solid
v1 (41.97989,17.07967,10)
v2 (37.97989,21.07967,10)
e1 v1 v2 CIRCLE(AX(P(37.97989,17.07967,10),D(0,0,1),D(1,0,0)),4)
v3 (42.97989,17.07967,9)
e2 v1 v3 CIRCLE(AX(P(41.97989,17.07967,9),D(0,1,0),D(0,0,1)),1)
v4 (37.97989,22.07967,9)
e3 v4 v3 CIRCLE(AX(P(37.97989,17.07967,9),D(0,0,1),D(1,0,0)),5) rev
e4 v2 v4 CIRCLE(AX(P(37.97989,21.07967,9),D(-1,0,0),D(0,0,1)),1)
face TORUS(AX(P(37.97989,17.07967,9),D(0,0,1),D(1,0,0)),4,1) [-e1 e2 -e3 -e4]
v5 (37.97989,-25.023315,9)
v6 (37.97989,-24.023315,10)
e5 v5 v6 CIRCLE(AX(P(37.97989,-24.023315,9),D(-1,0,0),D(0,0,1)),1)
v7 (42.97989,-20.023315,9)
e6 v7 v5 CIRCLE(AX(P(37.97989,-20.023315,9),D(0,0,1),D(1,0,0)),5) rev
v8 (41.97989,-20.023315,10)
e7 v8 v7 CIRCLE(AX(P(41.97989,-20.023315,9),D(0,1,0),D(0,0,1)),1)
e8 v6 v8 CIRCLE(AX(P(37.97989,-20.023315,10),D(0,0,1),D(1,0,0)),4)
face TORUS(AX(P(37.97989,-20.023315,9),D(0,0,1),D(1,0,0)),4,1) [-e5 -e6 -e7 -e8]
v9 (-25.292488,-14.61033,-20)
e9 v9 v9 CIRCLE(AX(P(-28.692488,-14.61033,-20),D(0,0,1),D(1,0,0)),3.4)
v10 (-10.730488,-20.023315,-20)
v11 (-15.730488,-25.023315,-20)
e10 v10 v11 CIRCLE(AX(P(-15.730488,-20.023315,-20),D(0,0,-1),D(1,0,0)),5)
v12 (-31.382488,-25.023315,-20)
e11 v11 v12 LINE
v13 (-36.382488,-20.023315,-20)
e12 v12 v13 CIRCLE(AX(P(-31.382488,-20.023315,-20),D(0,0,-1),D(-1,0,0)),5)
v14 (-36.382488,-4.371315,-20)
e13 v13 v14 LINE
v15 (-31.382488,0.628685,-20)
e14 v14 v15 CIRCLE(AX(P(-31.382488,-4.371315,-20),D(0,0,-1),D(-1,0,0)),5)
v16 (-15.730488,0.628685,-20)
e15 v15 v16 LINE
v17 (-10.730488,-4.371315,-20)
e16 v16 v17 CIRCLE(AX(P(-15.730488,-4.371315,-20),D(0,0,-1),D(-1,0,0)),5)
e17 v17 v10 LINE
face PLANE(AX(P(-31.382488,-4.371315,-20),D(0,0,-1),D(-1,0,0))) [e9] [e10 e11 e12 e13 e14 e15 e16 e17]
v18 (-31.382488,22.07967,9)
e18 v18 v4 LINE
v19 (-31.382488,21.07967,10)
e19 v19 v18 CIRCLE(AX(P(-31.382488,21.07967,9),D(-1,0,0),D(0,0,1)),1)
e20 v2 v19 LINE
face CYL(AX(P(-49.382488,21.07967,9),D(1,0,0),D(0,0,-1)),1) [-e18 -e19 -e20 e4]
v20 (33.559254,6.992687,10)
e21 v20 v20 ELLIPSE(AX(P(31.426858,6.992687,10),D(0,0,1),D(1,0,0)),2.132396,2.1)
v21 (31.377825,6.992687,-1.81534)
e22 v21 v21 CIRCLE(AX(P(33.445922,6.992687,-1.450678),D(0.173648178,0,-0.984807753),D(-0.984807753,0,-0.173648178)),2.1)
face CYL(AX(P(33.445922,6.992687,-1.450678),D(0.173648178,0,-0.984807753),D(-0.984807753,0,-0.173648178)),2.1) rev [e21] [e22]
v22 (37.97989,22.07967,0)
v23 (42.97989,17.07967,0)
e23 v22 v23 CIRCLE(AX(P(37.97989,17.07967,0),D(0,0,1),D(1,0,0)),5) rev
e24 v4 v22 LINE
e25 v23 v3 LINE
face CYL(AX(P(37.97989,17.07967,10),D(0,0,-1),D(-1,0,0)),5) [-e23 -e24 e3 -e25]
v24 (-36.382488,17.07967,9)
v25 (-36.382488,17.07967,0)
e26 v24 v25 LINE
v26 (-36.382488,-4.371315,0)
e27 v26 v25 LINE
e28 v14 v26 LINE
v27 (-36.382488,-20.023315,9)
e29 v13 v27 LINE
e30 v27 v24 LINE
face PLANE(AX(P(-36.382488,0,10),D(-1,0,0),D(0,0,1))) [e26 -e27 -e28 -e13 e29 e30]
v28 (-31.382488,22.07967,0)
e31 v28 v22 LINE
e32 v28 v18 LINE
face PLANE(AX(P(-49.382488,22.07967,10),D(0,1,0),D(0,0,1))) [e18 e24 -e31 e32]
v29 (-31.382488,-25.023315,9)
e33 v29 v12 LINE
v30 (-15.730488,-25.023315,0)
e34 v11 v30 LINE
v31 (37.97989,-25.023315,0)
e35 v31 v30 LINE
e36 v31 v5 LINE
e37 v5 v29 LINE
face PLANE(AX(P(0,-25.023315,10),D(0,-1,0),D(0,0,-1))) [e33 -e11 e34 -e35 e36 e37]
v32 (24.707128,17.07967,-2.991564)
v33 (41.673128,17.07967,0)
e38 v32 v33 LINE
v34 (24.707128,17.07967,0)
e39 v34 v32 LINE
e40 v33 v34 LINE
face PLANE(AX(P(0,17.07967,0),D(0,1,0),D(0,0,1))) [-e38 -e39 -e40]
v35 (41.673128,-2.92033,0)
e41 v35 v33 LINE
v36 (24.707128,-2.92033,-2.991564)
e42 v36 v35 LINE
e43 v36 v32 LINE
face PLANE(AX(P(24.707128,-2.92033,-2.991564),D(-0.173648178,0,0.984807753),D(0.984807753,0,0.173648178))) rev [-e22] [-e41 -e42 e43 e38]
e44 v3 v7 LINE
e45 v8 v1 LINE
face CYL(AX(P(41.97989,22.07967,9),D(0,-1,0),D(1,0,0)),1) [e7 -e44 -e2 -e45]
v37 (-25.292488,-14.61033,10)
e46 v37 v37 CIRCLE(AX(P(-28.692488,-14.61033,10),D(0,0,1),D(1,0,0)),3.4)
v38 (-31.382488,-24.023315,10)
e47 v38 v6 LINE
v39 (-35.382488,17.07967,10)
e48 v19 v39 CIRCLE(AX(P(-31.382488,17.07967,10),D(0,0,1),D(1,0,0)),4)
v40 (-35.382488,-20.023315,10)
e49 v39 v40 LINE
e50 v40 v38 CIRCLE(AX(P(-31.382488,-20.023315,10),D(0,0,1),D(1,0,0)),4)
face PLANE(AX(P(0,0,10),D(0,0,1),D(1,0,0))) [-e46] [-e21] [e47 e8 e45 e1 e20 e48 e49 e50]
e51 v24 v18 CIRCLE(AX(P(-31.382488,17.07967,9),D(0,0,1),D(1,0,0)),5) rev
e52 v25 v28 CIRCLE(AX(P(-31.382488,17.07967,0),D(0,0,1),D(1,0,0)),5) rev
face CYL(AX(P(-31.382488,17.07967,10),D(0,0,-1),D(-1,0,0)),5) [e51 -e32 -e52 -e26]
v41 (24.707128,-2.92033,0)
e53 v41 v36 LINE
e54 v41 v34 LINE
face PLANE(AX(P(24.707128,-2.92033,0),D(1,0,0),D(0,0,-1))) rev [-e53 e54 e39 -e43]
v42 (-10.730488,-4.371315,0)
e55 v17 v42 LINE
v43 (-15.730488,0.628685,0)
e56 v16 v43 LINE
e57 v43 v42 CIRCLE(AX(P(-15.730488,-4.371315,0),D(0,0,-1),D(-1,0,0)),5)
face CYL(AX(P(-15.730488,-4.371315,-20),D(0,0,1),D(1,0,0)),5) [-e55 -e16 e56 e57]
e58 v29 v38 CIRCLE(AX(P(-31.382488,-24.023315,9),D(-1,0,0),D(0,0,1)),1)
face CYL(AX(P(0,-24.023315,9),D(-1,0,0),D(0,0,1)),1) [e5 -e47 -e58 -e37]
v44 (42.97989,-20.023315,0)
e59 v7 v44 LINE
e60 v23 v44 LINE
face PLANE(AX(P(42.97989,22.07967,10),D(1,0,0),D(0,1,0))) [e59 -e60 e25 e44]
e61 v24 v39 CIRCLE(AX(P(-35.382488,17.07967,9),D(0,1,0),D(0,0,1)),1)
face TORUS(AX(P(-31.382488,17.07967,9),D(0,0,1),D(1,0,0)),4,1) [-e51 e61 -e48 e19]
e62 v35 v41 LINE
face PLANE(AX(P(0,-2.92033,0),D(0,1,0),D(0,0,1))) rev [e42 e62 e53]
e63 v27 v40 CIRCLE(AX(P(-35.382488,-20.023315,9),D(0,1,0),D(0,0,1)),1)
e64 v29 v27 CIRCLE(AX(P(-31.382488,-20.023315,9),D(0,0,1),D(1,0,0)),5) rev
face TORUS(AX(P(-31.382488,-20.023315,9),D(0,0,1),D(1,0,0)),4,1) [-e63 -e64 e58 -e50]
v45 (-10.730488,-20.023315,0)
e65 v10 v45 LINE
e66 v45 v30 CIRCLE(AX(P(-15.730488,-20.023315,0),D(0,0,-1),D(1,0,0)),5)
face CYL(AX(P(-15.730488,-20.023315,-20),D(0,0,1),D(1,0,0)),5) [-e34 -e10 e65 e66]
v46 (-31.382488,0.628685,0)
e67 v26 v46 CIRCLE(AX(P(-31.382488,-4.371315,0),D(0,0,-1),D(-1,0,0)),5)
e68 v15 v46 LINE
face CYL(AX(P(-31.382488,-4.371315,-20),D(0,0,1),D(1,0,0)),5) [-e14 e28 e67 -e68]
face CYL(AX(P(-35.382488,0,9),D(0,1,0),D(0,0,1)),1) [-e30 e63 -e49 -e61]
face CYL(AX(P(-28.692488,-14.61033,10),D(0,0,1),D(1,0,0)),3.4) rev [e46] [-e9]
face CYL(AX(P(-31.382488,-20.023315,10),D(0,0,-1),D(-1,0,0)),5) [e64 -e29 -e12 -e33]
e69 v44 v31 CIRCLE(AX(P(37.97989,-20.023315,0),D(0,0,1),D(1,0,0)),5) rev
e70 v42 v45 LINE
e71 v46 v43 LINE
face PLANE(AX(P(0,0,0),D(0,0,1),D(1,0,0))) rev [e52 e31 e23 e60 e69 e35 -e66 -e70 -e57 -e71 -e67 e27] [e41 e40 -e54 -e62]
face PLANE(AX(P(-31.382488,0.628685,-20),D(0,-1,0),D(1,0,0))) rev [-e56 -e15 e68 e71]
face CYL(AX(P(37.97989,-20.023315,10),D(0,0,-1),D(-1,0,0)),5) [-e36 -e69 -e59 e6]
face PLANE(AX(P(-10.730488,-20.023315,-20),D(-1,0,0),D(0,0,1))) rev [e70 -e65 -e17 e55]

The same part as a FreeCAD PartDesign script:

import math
import FreeCAD as App
import Part
import Sketcher
Q = App.Units.Quantity


def edges_at(feature, points):
    """Names of the edges that pass closest to the given points."""
    edges = feature.Shape.Edges
    near = lambda p: min(range(len(edges)), key=lambda i: edges[i].distToShape(Part.Vertex(*p))[0])
    return sorted({f"Edge{near(p) + 1}" for p in points})

doc = App.newDocument("Part")
body = doc.addObject("PartDesign::Body", "Body")

# Sketch on XY plane
sketch1 = body.newObject("Sketcher::SketchObject", "Sketch")
sketch1.AttachmentSupport = (doc.getObject("XY_Plane"), [""])
sketch1.MapMode = "FlatFace"
sketch1.addGeometry([
    Part.LineSegment(App.Vector(43, 22, 0), App.Vector(-49, 22, 0)),  # 0
    Part.LineSegment(App.Vector(-49, 22, 0), App.Vector(-49, -8, 0)),  # 1
    Part.LineSegment(App.Vector(-49, -8, 0), App.Vector(-49, -41, 0)),  # 2
    Part.LineSegment(App.Vector(-49, -41, 0), App.Vector(-6, -41, 0)),  # 3
    Part.LineSegment(App.Vector(-6, -41, 0), App.Vector(-6, -8, 0)),  # 4
    Part.LineSegment(App.Vector(-6, -8, 0), App.Vector(43, -8, 0)),  # 5
    Part.LineSegment(App.Vector(43, -8, 0), App.Vector(43, 22, 0)),  # 6
], False)
sketch1.addConstraint([
    Sketcher.Constraint("Coincident", 0, 2, 1, 1),
    Sketcher.Constraint("Coincident", 1, 2, 2, 1),
    Sketcher.Constraint("Coincident", 2, 2, 3, 1),
    Sketcher.Constraint("Coincident", 3, 2, 4, 1),
    Sketcher.Constraint("Coincident", 4, 2, 5, 1),
    Sketcher.Constraint("Coincident", 5, 2, 6, 1),
    Sketcher.Constraint("Coincident", 6, 2, 0, 1),
    Sketcher.Constraint("Horizontal", 0),
    Sketcher.Constraint("Vertical", 1),
    Sketcher.Constraint("Vertical", 2),
    Sketcher.Constraint("Horizontal", 3),
    Sketcher.Constraint("Vertical", 4),
    Sketcher.Constraint("Horizontal", 5),
    Sketcher.Constraint("Vertical", 6),
    Sketcher.Constraint("Horizontal", 1, 2, 4, 2),
    Sketcher.Constraint("DistanceY", 1, 2, 1, 1, Q("30 mm")),
    Sketcher.Constraint("DistanceX", 0, 2, 0, 1, Q("92.362378 mm")),
    Sketcher.Constraint("DistanceX", 3, 1, 3, 2, Q("43.699941 mm")),
    Sketcher.Constraint("DistanceY", 2, 2, 2, 1, Q("33.102985 mm")),
    Sketcher.Constraint("DistanceY", -1, 1, 0, 2, Q("22.07967 mm")),
    Sketcher.Constraint("DistanceX", -1, 1, 5, 2, Q("42.97989 mm")),
])
pad1 = body.newObject("PartDesign::Pad", "Pad")
pad1.Profile = sketch1
pad1.Length = 10

# Sketch on XZ plane
sketch2 = body.newObject("Sketcher::SketchObject", "Sketch001")
sketch2.AttachmentSupport = (doc.getObject("XZ_Plane"), [""])
sketch2.MapMode = "FlatFace"
sketch2.AttachmentOffset = App.Placement(App.Vector(0, 0, -7.07967), App.Rotation())
sketch2.addGeometry([
    Part.LineSegment(App.Vector(41.7, 0, 0), App.Vector(24.7, 0, 0)),
    Part.LineSegment(App.Vector(24.7, 0, 0), App.Vector(24.7, -3, 0)),
    Part.LineSegment(App.Vector(24.7, -3, 0), App.Vector(41.7, 0, 0)),
], False)
sketch2.addConstraint([
    Sketcher.Constraint("Coincident", 0, 2, 1, 1),
    Sketcher.Constraint("Coincident", 1, 2, 2, 1),
    Sketcher.Constraint("Coincident", 2, 2, 0, 1),
    Sketcher.Constraint("Horizontal", 0),
    Sketcher.Constraint("Vertical", 1),
    Sketcher.Constraint("PointOnObject", 0, 2, -1),
    Sketcher.Constraint("Angle", 2, Q("10 deg")),
    Sketcher.Constraint("DistanceX", 0, 2, 0, 1, Q("16.966 mm")),
    Sketcher.Constraint("DistanceX", -1, 1, 0, 2, Q("24.707128 mm")),
])
pad2 = body.newObject("PartDesign::Pad", "Pad001")
pad2.Profile = sketch2
pad2.Length = 20
pad2.Midplane = True

# Sketch on an angled plane
sketch3 = body.newObject("Sketcher::SketchObject", "Sketch002")
sketch3.Placement = App.Placement(App.Vector(1.256599, 0, -7.126525), App.Rotation(App.Vector(-0.984807753, 0, -0.173648178), App.Vector(0, 1, 0), App.Vector(0.173648178, 0, -0.984807753), "ZXY"))
sketch3.addGeometry(Part.Circle(App.Vector(-32.7, 7, 0), App.Vector(0, 0, 1), 2.1), False)
sketch3.addConstraint([
    Sketcher.Constraint("Diameter", 0, Q("4.2 mm")),
    Sketcher.Constraint("DistanceX", 0, 3, -1, 1, Q("32.685895 mm")),
    Sketcher.Constraint("DistanceY", -1, 1, 0, 3, Q("6.992687 mm")),
])
doc.recompute()
hole = body.newObject("PartDesign::Hole", "Hole")
hole.Profile = sketch3
hole.ThreadType = "None"
hole.Diameter = 4.2
hole.DepthType = "ThroughAll"

# Sketch on XY plane
sketch4 = body.newObject("Sketcher::SketchObject", "Sketch003")
sketch4.AttachmentSupport = (doc.getObject("XY_Plane"), [""])
sketch4.MapMode = "FlatFace"
sketch4.addGeometry([
    Part.LineSegment(App.Vector(-6, -41, 0), App.Vector(-49, -41, 0)),  # 0
    Part.LineSegment(App.Vector(-49, -41, 0), App.Vector(-49, 22, 0)),  # 1
    Part.LineSegment(App.Vector(-49, 22, 0), App.Vector(-36, 22, 0)),  # 2
    Part.LineSegment(App.Vector(-36, 22, 0), App.Vector(-36, -25, 0)),  # 3
    Part.LineSegment(App.Vector(-36, -25, 0), App.Vector(-16, -25, 0)),  # 4
    Part.LineSegment(App.Vector(-16, -25, 0), App.Vector(-16, -8, 0)),  # 5
    Part.LineSegment(App.Vector(-16, -8, 0), App.Vector(-6, -8, 0)),  # 6
    Part.LineSegment(App.Vector(-6, -8, 0), App.Vector(-6, -41, 0)),  # 7
], False)
sketch4.addConstraint([
    Sketcher.Constraint("Coincident", 0, 2, 1, 1),
    Sketcher.Constraint("Coincident", 1, 2, 2, 1),
    Sketcher.Constraint("Coincident", 2, 2, 3, 1),
    Sketcher.Constraint("Coincident", 3, 2, 4, 1),
    Sketcher.Constraint("Coincident", 4, 2, 5, 1),
    Sketcher.Constraint("Coincident", 5, 2, 6, 1),
    Sketcher.Constraint("Coincident", 6, 2, 7, 1),
    Sketcher.Constraint("Coincident", 7, 2, 0, 1),
    Sketcher.Constraint("Horizontal", 0),
    Sketcher.Constraint("Vertical", 1),
    Sketcher.Constraint("Horizontal", 2),
    Sketcher.Constraint("Vertical", 3),
    Sketcher.Constraint("Horizontal", 4),
    Sketcher.Constraint("Vertical", 5),
    Sketcher.Constraint("Horizontal", 6),
    Sketcher.Constraint("Vertical", 7),
    Sketcher.Constraint("DistanceX", 2, 1, 2, 2, Q("13 mm")),
    Sketcher.Constraint("DistanceX", 6, 1, 6, 2, Q("10 mm")),
    Sketcher.Constraint("DistanceY", 0, 2, 3, 2, Q("16 mm")),
    Sketcher.Constraint("DistanceY", 5, 2, 2, 2, Q("30 mm")),
    Sketcher.Constraint("DistanceX", 0, 2, 0, 1, Q("43.699941 mm")),
    Sketcher.Constraint("DistanceY", 1, 1, 1, 2, Q("63.102985 mm")),
    Sketcher.Constraint("DistanceY", -1, 1, 1, 2, Q("22.07967 mm")),
    Sketcher.Constraint("DistanceX", 0, 2, -1, 1, Q("49.382488 mm")),
])
pocket1 = body.newObject("PartDesign::Pocket", "Pocket")
pocket1.Profile = sketch4
pocket1.Length = 10
pocket1.Reversed = True

# Sketch on XY plane
sketch5 = body.newObject("Sketcher::SketchObject", "Sketch004")
sketch5.AttachmentSupport = (doc.getObject("XY_Plane"), [""])
sketch5.MapMode = "FlatFace"
sketch5.addGeometry([
    Part.LineSegment(App.Vector(43, -8, 0), App.Vector(43, -25, 0)),
    Part.LineSegment(App.Vector(43, -25, 0), App.Vector(-16, -25, 0)),
    Part.LineSegment(App.Vector(-16, -25, 0), App.Vector(-16, -8, 0)),
    Part.LineSegment(App.Vector(-16, -8, 0), App.Vector(43, -8, 0)),
], False)
sketch5.addConstraint([
    Sketcher.Constraint("Coincident", 0, 2, 1, 1),
    Sketcher.Constraint("Coincident", 1, 2, 2, 1),
    Sketcher.Constraint("Coincident", 2, 2, 3, 1),
    Sketcher.Constraint("Coincident", 3, 2, 0, 1),
    Sketcher.Constraint("Vertical", 0),
    Sketcher.Constraint("Horizontal", 1),
    Sketcher.Constraint("Vertical", 2),
    Sketcher.Constraint("Horizontal", 3),
    Sketcher.Constraint("DistanceX", 1, 2, 1, 1, Q("58.662438 mm")),
    Sketcher.Constraint("DistanceY", 0, 2, 0, 1, Q("17.102985 mm")),
    Sketcher.Constraint("DistanceX", -1, 1, 0, 2, Q("42.97989 mm")),
    Sketcher.Constraint("DistanceY", 2, 2, -1, 1, Q("7.92033 mm")),
])
pad3 = body.newObject("PartDesign::Pad", "Pad002")
pad3.Profile = sketch5
pad3.Length = 10

# Sketch on XY plane
sketch6 = body.newObject("Sketcher::SketchObject", "Sketch005")
sketch6.AttachmentSupport = (doc.getObject("XY_Plane"), [""])
sketch6.MapMode = "FlatFace"
sketch6.addGeometry([
    Part.LineSegment(App.Vector(-16, -25, 0), App.Vector(-36, -25, 0)),  # 0
    Part.LineSegment(App.Vector(-36, -25, 0), App.Vector(-36, -4, 0)),  # 1
    Part.ArcOfCircle(Part.Circle(App.Vector(-31, -4, 0), App.Vector(0, 0, 1), 5), math.radians(90), math.radians(180)),  # 2
    Part.LineSegment(App.Vector(-31, 1, 0), App.Vector(-16, 1, 0)),  # 3
    Part.ArcOfCircle(Part.Circle(App.Vector(-16, -4, 0), App.Vector(0, 0, 1), 5), math.radians(0), math.radians(90)),  # 4
    Part.LineSegment(App.Vector(-11, -4, 0), App.Vector(-11, -20, 0)),  # 5
    Part.ArcOfCircle(Part.Circle(App.Vector(-16, -20, 0), App.Vector(0, 0, 1), 5), math.radians(-90), math.radians(0)),  # 6
], False)
sketch6.addConstraint([
    Sketcher.Constraint("Coincident", 0, 2, 1, 1),
    Sketcher.Constraint("Tangent", 1, 2, 2, 2),
    Sketcher.Constraint("Tangent", 2, 1, 3, 1),
    Sketcher.Constraint("Tangent", 3, 2, 4, 2),
    Sketcher.Constraint("Tangent", 4, 1, 5, 1),
    Sketcher.Constraint("Tangent", 5, 2, 6, 2),
    Sketcher.Constraint("Tangent", 6, 1, 0, 1),
    Sketcher.Constraint("Horizontal", 0),
    Sketcher.Constraint("Vertical", 1),
    Sketcher.Constraint("Horizontal", 3),
    Sketcher.Constraint("Vertical", 5),
    Sketcher.Constraint("Equal", 2, 4),
    Sketcher.Constraint("Equal", 4, 6),
    Sketcher.Constraint("Equal", 0, 1),
    Sketcher.Constraint("Radius", 2, Q("5 mm")),
    Sketcher.Constraint("DistanceX", 0, 2, 0, 1, Q("20.652 mm")),
    Sketcher.Constraint("DistanceX", 2, 3, -1, 1, Q("31.382488 mm")),
    Sketcher.Constraint("DistanceY", 2, 3, -1, 1, Q("4.371315 mm")),
])
pad4 = body.newObject("PartDesign::Pad", "Pad003")
pad4.Profile = sketch6
pad4.Length = 20
pad4.Reversed = True

# Sketch on XY plane
sketch7 = body.newObject("Sketcher::SketchObject", "Sketch006")
sketch7.AttachmentSupport = (doc.getObject("XY_Plane"), [""])
sketch7.MapMode = "FlatFace"
sketch7.AttachmentOffset = App.Placement(App.Vector(0, 0, 10), App.Rotation())
sketch7.addGeometry(Part.Circle(App.Vector(-28.7, -14.6, 0), App.Vector(0, 0, 1), 3.4), False)
sketch7.addConstraint([
    Sketcher.Constraint("Diameter", 0, Q("6.8 mm")),
    Sketcher.Constraint("DistanceY", 0, 3, -1, 1, Q("14.61033 mm")),
    Sketcher.Constraint("DistanceX", 0, 3, -1, 1, Q("28.692488 mm")),
])
doc.recompute()
hole2 = body.newObject("PartDesign::Hole", "Hole001")
hole2.Profile = sketch7
hole2.ThreadType = "None"
hole2.Diameter = 6.8
hole2.DepthType = "ThroughAll"
doc.recompute()

fillet = body.newObject("PartDesign::Fillet", "Fillet")
fillet.Base = (hole2, edges_at(hole2, [
    (-36.382, -25.023, -10),
    (-36.382, 22.08, 5),
    (42.98, -25.023, 5),
    (42.98, 22.08, 5),
]))
fillet.Radius = 5
doc.recompute()

fillet2 = body.newObject("PartDesign::Fillet", "Fillet001")
fillet2.Base = (fillet, edges_at(fillet, [
    (-36.382, -1.472, 10),
    (3.299, 22.08, 10),
    (11.149, -25.023, 10),
    (42.98, 4.58, 10),
    (-34.918, -23.559, 10),
    (41.515, -23.559, 10),
    (41.515, 20.615, 10),
    (-34.918, 20.615, 10),
]))
fillet2.Radius = 1

doc.recompute()
